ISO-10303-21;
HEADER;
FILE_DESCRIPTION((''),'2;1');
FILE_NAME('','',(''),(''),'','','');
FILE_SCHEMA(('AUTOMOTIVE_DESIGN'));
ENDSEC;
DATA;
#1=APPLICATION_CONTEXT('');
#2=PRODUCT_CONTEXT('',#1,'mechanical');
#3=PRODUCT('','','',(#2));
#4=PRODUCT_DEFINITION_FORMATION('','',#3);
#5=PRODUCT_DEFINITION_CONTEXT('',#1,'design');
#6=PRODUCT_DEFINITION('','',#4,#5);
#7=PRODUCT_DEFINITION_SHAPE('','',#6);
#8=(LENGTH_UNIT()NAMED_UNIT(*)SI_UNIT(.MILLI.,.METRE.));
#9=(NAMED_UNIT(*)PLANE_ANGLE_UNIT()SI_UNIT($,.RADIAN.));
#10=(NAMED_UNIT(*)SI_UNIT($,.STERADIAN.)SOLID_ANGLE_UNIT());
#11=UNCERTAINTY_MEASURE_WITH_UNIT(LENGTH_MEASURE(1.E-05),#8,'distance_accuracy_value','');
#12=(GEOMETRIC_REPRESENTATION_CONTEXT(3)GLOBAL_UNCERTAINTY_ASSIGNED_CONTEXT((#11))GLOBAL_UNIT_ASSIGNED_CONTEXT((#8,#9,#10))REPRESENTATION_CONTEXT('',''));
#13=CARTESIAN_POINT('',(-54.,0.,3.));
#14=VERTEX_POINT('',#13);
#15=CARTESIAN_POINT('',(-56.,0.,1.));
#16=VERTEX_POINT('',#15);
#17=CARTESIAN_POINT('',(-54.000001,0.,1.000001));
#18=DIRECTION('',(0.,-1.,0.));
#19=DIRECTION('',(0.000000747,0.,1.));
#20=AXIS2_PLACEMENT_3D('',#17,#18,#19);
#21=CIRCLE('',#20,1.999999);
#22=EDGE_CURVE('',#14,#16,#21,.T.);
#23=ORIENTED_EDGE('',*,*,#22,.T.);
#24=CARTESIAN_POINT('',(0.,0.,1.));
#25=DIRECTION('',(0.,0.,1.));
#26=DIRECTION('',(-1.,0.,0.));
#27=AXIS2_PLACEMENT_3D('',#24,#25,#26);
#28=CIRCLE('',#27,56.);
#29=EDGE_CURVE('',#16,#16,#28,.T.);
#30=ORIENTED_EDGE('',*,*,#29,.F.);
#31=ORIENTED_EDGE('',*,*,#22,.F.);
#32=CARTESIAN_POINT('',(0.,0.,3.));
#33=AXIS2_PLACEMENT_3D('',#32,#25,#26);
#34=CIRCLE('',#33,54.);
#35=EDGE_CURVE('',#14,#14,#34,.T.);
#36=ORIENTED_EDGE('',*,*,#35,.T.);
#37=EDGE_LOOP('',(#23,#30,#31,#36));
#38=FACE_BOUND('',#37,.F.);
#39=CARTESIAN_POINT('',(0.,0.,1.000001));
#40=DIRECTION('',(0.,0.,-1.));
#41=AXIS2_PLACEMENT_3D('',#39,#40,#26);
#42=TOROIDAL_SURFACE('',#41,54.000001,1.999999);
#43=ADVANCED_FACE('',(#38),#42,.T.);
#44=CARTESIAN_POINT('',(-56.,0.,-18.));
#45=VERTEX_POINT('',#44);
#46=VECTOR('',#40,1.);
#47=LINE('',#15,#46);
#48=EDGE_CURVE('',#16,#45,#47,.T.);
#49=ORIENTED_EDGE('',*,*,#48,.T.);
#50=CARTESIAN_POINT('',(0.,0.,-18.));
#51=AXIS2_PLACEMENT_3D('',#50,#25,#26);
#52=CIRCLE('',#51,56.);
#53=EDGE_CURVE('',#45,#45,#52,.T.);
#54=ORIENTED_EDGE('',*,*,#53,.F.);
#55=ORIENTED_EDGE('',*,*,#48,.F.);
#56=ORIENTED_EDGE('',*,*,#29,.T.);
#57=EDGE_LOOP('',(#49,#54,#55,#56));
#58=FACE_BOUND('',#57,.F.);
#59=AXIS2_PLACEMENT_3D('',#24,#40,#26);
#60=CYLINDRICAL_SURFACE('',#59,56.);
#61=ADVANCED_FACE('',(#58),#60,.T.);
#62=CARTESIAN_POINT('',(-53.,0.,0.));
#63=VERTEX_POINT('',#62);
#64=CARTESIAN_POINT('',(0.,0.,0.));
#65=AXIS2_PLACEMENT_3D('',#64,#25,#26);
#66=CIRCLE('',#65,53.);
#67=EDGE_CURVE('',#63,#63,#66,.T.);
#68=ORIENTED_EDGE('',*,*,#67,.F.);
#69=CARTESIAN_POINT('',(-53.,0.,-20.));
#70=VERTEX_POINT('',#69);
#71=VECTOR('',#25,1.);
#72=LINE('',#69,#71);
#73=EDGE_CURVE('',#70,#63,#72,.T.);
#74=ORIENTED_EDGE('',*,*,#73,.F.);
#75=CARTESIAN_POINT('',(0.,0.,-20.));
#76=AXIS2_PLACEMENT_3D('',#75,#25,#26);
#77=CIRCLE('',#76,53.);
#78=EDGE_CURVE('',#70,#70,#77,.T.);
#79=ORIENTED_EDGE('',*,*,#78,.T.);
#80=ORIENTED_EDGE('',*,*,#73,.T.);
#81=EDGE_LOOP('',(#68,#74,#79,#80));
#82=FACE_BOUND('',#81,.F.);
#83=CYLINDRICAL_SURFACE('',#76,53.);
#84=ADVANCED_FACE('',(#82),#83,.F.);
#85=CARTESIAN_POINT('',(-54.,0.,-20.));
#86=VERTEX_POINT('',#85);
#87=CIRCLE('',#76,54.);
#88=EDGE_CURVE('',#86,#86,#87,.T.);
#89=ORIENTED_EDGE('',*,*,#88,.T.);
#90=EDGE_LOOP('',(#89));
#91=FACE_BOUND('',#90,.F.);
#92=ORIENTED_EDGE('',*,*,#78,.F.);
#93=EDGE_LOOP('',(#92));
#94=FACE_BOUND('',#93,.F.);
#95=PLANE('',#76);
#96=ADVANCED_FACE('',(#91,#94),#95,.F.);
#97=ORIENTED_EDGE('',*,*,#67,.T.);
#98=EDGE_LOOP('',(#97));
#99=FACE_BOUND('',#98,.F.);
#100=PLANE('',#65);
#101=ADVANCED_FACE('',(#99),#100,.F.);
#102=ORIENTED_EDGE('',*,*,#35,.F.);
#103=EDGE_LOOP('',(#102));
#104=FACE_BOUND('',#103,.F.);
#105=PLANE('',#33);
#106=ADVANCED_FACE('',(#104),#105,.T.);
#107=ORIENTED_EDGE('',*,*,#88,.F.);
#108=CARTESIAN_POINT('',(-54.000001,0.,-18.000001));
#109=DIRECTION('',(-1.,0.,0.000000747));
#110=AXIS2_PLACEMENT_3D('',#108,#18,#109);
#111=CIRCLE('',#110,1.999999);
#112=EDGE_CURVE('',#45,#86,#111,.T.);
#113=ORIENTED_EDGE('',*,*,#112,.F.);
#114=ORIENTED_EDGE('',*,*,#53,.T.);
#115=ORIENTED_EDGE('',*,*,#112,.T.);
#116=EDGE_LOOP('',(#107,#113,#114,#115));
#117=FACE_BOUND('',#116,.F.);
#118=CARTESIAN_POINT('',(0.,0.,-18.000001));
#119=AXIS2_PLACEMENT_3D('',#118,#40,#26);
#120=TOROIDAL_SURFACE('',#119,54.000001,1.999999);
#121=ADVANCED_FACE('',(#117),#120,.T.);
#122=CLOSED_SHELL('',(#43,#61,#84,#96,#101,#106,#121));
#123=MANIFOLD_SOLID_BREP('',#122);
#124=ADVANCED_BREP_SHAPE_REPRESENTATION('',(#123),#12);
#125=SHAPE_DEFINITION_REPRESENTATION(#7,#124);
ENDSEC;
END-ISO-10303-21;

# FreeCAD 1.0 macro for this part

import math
import FreeCAD as App
import Part
import Sketcher
from FreeCAD import Vector

doc = App.newDocument("Part")
body = doc.addObject("PartDesign::Body", "Body")

# Sketch on XZ plane
sketch1 = doc.addObject("Sketcher::SketchObject", "Sketch")
body.addObject(sketch1)
sketch1.AttachmentSupport = (doc.XZ_Plane, [""])
sketch1.MapMode = "FlatFace"
sketch1.addGeometry(Part.LineSegment(Vector(-54, -20, 0), Vector(-53, -20, 0)), False)
sketch1.addGeometry(Part.LineSegment(Vector(-53, -20, 0), Vector(-53, 0, 0)), False)
sketch1.addGeometry(Part.LineSegment(Vector(-53, 0, 0), Vector(0, 0, 0)), False)
sketch1.addGeometry(Part.LineSegment(Vector(0, 0, 0), Vector(0, 3, 0)), False)
sketch1.addGeometry(Part.LineSegment(Vector(0, 3, 0), Vector(-54, 3, 0)), False)
sketch1.addGeometry(Part.ArcOfCircle(Part.Circle(Vector(-54, 1, 0), Vector(0, 0, 1), 2), math.radians(90), math.radians(180)), False)
sketch1.addGeometry(Part.LineSegment(Vector(-56, 1, 0), Vector(-56, -18, 0)), False)
sketch1.addGeometry(Part.ArcOfCircle(Part.Circle(Vector(-54, -18, 0), Vector(0, 0, 1), 2), math.radians(180), math.radians(270)), False)
sketch1.addConstraint(Sketcher.Constraint("Coincident", 0, 2, 1, 1))
sketch1.addConstraint(Sketcher.Constraint("Coincident", 1, 2, 2, 1))
sketch1.addConstraint(Sketcher.Constraint("Coincident", 2, 2, 3, 1))
sketch1.addConstraint(Sketcher.Constraint("Coincident", 3, 2, 4, 1))
sketch1.addConstraint(Sketcher.Constraint("Tangent", 4, 2, 5, 1))
sketch1.addConstraint(Sketcher.Constraint("Tangent", 5, 2, 6, 1))
sketch1.addConstraint(Sketcher.Constraint("Tangent", 6, 2, 7, 1))
sketch1.addConstraint(Sketcher.Constraint("Tangent", 7, 2, 0, 1))
sketch1.addConstraint(Sketcher.Constraint("Horizontal", 0))
sketch1.addConstraint(Sketcher.Constraint("Vertical", 1))
sketch1.addConstraint(Sketcher.Constraint("Horizontal", 2))
sketch1.addConstraint(Sketcher.Constraint("Vertical", 3))
sketch1.addConstraint(Sketcher.Constraint("Horizontal", 4))
sketch1.addConstraint(Sketcher.Constraint("Vertical", 6))
sketch1.addConstraint(Sketcher.Constraint("Coincident", 2, 2, -1, 1))
sketch1.addConstraint(Sketcher.Constraint("Equal", 5, 7))
sketch1.addConstraint(Sketcher.Constraint("Radius", 5, 1.999999))
sketch1.addConstraint(Sketcher.Constraint("DistanceX", 0, 1, 0, 2, 1.0))
sketch1.addConstraint(Sketcher.Constraint("DistanceX", 2, 1, 2, 2, 53.0))
sketch1.addConstraint(Sketcher.Constraint("DistanceY", 1, 1, 1, 2, 20.0))
sketch1.addConstraint(Sketcher.Constraint("DistanceY", 3, 1, 3, 2, 3.0))
revolution = doc.addObject("PartDesign::Revolution", "Revolution")
body.addObject(revolution)
revolution.Profile = sketch1
revolution.ReferenceAxis = (sketch1, ["V_Axis"])
revolution.Angle = 360

doc.recompute()
